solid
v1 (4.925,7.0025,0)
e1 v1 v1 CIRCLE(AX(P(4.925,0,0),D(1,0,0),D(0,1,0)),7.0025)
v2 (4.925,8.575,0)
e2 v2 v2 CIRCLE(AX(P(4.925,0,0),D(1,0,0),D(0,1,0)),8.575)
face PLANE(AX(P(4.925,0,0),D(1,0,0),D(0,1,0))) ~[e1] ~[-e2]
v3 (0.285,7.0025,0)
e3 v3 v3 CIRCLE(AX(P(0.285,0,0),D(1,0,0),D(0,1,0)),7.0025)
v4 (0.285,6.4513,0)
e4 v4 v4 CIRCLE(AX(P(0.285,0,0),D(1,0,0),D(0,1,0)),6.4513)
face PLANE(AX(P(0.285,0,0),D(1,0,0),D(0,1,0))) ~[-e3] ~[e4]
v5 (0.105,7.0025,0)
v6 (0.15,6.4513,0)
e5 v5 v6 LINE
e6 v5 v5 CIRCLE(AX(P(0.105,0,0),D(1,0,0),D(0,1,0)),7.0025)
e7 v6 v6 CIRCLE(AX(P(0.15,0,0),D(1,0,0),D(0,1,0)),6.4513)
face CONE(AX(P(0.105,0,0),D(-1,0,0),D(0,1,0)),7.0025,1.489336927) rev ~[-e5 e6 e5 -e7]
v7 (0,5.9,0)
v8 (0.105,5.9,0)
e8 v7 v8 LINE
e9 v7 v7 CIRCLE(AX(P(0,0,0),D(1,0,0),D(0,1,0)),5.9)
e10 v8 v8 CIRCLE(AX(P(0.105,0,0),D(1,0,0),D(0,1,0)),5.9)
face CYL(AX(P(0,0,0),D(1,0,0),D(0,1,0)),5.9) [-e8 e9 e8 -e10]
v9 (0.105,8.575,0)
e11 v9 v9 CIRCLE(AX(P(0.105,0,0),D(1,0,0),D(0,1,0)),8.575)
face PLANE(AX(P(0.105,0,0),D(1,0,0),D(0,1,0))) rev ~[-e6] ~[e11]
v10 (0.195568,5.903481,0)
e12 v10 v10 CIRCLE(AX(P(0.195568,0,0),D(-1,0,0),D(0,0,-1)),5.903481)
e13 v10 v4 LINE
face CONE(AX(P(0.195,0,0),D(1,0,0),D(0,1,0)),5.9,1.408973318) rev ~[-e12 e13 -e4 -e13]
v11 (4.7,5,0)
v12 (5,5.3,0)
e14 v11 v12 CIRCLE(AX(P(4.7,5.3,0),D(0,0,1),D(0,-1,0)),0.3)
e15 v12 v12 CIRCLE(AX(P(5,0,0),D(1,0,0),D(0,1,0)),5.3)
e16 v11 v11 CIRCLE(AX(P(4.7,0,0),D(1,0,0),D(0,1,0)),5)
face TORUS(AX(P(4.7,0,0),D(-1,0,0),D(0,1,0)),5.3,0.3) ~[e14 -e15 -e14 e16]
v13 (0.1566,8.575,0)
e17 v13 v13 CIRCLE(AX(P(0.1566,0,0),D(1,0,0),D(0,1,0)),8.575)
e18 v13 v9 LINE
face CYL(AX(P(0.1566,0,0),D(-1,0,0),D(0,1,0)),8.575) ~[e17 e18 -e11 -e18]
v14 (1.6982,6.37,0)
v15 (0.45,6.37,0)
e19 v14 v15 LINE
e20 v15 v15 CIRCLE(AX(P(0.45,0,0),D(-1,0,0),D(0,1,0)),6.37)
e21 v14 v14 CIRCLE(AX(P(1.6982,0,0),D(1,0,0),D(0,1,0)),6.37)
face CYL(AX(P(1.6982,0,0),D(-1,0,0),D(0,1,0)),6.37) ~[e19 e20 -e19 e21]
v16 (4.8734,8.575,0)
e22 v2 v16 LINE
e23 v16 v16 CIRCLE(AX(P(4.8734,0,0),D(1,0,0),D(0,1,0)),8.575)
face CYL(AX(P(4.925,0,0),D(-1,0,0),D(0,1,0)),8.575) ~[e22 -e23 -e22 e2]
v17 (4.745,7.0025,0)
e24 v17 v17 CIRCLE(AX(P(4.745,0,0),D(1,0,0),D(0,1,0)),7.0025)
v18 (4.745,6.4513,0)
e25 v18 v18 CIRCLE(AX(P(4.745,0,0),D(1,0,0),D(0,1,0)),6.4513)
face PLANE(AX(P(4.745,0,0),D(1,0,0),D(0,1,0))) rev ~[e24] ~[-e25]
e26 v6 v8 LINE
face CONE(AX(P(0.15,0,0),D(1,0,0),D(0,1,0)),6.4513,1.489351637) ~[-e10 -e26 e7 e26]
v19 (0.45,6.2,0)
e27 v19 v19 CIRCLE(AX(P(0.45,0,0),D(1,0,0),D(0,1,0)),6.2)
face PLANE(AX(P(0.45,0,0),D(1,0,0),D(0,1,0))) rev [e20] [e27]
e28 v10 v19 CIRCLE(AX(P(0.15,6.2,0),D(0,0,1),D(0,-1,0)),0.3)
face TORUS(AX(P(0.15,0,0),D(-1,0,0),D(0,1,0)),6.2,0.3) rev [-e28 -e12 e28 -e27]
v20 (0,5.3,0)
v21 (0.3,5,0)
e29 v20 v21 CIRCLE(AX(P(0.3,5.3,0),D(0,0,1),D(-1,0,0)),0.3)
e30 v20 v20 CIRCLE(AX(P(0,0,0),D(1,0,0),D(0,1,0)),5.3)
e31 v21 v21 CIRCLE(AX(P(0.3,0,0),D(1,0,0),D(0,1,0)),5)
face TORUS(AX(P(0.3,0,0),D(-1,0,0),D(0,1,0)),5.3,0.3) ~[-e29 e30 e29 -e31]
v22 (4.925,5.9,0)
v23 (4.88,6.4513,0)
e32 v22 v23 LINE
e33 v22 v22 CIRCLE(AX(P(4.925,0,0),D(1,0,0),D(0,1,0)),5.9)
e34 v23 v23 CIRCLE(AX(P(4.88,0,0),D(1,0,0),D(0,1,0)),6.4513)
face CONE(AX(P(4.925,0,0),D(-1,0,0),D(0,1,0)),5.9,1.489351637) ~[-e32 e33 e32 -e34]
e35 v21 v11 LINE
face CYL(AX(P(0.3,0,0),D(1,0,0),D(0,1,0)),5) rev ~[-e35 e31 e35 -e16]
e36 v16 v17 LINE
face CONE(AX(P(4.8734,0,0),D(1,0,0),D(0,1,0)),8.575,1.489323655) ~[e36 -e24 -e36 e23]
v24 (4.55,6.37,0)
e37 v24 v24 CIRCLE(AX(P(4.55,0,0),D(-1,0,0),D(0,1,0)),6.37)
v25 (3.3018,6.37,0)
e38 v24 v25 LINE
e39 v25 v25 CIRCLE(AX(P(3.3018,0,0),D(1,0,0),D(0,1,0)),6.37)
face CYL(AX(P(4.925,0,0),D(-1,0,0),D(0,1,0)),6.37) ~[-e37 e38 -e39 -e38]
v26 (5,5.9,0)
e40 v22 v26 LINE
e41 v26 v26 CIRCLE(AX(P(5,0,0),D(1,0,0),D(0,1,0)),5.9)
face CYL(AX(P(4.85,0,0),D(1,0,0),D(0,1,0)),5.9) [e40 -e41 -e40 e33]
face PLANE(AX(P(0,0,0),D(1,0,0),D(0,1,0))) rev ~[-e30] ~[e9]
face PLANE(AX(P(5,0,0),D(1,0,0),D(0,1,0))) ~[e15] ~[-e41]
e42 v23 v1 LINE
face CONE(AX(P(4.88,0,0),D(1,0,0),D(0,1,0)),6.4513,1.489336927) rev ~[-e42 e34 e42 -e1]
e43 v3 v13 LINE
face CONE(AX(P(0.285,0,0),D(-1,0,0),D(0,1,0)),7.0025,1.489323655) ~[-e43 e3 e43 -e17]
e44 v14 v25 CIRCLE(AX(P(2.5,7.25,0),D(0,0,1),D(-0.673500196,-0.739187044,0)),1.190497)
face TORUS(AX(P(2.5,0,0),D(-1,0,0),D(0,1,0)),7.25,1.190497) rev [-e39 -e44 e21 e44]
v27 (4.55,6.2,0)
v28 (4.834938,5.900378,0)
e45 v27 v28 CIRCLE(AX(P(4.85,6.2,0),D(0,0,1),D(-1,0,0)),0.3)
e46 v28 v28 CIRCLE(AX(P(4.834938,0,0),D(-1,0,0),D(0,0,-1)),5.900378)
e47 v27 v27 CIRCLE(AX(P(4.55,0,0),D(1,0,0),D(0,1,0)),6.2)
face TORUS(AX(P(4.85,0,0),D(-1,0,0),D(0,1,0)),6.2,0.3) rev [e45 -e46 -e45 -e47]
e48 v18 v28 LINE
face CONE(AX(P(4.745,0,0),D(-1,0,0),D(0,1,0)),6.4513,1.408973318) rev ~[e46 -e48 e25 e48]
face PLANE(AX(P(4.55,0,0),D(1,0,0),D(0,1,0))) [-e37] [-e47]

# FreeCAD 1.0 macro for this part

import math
import FreeCAD as App
import Part
import Sketcher
Q = App.Units.Quantity

doc = App.newDocument("Part")
body = doc.addObject("PartDesign::Body", "Body")

# Sketch on XY plane
sketch1 = body.newObject("Sketcher::SketchObject", "Sketch")
sketch1.AttachmentSupport = (doc.getObject("XY_Plane"), [""])
sketch1.MapMode = "FlatFace"
sketch1.addGeometry(Part.ArcOfCircle(Part.Circle(App.Vector(0.07, 6.29, 0), App.Vector(0, 0, 1), 0.08), math.radians(90), math.radians(180)), False)
sketch1.addGeometry(Part.LineSegment(App.Vector(0, 6.29, 0), App.Vector(0, 5.3, 0)), False)
sketch1.addGeometry(Part.ArcOfCircle(Part.Circle(App.Vector(0.3, 5.3, 0), App.Vector(0, 0, 1), 0.3), math.radians(180), math.radians(270)), False)
sketch1.addGeometry(Part.LineSegment(App.Vector(0.3, 5, 0), App.Vector(4.7, 5, 0)), False)
sketch1.addGeometry(Part.ArcOfCircle(Part.Circle(App.Vector(4.7, 5.3, 0), App.Vector(0, 0, 1), 0.3), math.radians(-90), math.radians(0)), False)
sketch1.addGeometry(Part.LineSegment(App.Vector(5, 5.3, 0), App.Vector(5, 6.29, 0)), False)
sketch1.addGeometry(Part.ArcOfCircle(Part.Circle(App.Vector(4.92, 6.29, 0), App.Vector(0, 0, 1), 0.08), math.radians(0), math.radians(90)), False)
sketch1.addGeometry(Part.LineSegment(App.Vector(4.92, 6.37, 0), App.Vector(3.3, 6.37, 0)), False)
sketch1.addGeometry(Part.ArcOfCircle(Part.Circle(App.Vector(2.5, 7.25, 0), App.Vector(0, 0, 1), 1.19), math.radians(-132), math.radians(-48)), False)
sketch1.addGeometry(Part.LineSegment(App.Vector(1.7, 6.37, 0), App.Vector(0.07, 6.37, 0)), False)
sketch1.addConstraint(Sketcher.Constraint("Tangent", 0, 2, 1, 1))
sketch1.addConstraint(Sketcher.Constraint("Tangent", 1, 2, 2, 1))
sketch1.addConstraint(Sketcher.Constraint("Tangent", 2, 2, 3, 1))
sketch1.addConstraint(Sketcher.Constraint("Tangent", 3, 2, 4, 1))
sketch1.addConstraint(Sketcher.Constraint("Tangent", 4, 2, 5, 1))
sketch1.addConstraint(Sketcher.Constraint("Tangent", 5, 2, 6, 1))
sketch1.addConstraint(Sketcher.Constraint("Tangent", 6, 2, 7, 1))
sketch1.addConstraint(Sketcher.Constraint("Coincident", 7, 2, 8, 2))
sketch1.addConstraint(Sketcher.Constraint("Coincident", 8, 1, 9, 1))
sketch1.addConstraint(Sketcher.Constraint("Tangent", 9, 2, 0, 1))
sketch1.addConstraint(Sketcher.Constraint("Vertical", 1))
sketch1.addConstraint(Sketcher.Constraint("Horizontal", 3))
sketch1.addConstraint(Sketcher.Constraint("Vertical", 5))
sketch1.addConstraint(Sketcher.Constraint("Horizontal", 7))
sketch1.addConstraint(Sketcher.Constraint("Horizontal", 9))
sketch1.addConstraint(Sketcher.Constraint("Equal", 2, 4))
sketch1.addConstraint(Sketcher.Constraint("Equal", 0, 6))
sketch1.addConstraint(Sketcher.Constraint("PointOnObject", 0, 2, -2))
sketch1.addConstraint(Sketcher.Constraint("Horizontal", 0, 3, 6, 3))
sketch1.addConstraint(Sketcher.Constraint("Equal", 7, 9))
sketch1.addConstraint(Sketcher.Constraint("Radius", 2, Q("0.3 mm")))
sketch1.addConstraint(Sketcher.Constraint("DistanceX", 3, 1, 3, 2, Q("4.4 mm")))
sketch1.addConstraint(Sketcher.Constraint("DistanceY", -1, 1, 2, 2, Q("5 mm")))
sketch1.addConstraint(Sketcher.Constraint("Radius", 0, Q("0.075 mm")))
sketch1.addConstraint(Sketcher.Constraint("Radius", 8, Q("1.1905 mm")))
sketch1.addConstraint(Sketcher.Constraint("DistanceY", 1, 2, 1, 1, Q("0.995 mm")))
sketch1.addConstraint(Sketcher.Constraint("DistanceY", -1, 1, 8, 3, Q("7.25 mm")))
revolution = body.newObject("PartDesign::Revolution", "Revolution")
revolution.Profile = sketch1
revolution.ReferenceAxis = (sketch1, ["H_Axis"])
revolution.Angle = 360

# Sketch on XY plane
sketch2 = body.newObject("Sketcher::SketchObject", "Sketch001")
sketch2.AttachmentSupport = (doc.getObject("XY_Plane"), [""])
sketch2.MapMode = "FlatFace"
sketch2.addGeometry(Part.LineSegment(App.Vector(5, 13.15, 0), App.Vector(0, 13.15, 0)), False)
sketch2.addGeometry(Part.LineSegment(App.Vector(0, 13.15, 0), App.Vector(0, 5.9, 0)), False)
sketch2.addGeometry(Part.LineSegment(App.Vector(0, 5.9, 0), App.Vector(0.15, 5.9, 0)), False)
sketch2.addGeometry(Part.ArcOfCircle(Part.Circle(App.Vector(0.15, 6.2, 0), App.Vector(0, 0, 1), 0.3), math.radians(-90), math.radians(0)), False)
sketch2.addGeometry(Part.LineSegment(App.Vector(0.45, 6.2, 0), App.Vector(0.45, 12.85, 0)), False)
sketch2.addGeometry(Part.LineSegment(App.Vector(0.45, 12.85, 0), App.Vector(4.55, 12.85, 0)), False)
sketch2.addGeometry(Part.LineSegment(App.Vector(4.55, 12.85, 0), App.Vector(4.55, 6.2, 0)), False)
sketch2.addGeometry(Part.ArcOfCircle(Part.Circle(App.Vector(4.85, 6.2, 0), App.Vector(0, 0, 1), 0.3), math.radians(180), math.radians(270)), False)
sketch2.addGeometry(Part.LineSegment(App.Vector(4.85, 5.9, 0), App.Vector(5, 5.9, 0)), False)
sketch2.addGeometry(Part.LineSegment(App.Vector(5, 5.9, 0), App.Vector(5, 13.15, 0)), False)
sketch2.addConstraint(Sketcher.Constraint("Coincident", 0, 2, 1, 1))
sketch2.addConstraint(Sketcher.Constraint("Coincident", 1, 2, 2, 1))
sketch2.addConstraint(Sketcher.Constraint("Tangent", 2, 2, 3, 1))
sketch2.addConstraint(Sketcher.Constraint("Tangent", 3, 2, 4, 1))
sketch2.addConstraint(Sketcher.Constraint("Coincident", 4, 2, 5, 1))
sketch2.addConstraint(Sketcher.Constraint("Coincident", 5, 2, 6, 1))
sketch2.addConstraint(Sketcher.Constraint("Tangent", 6, 2, 7, 1))
sketch2.addConstraint(Sketcher.Constraint("Tangent", 7, 2, 8, 1))
sketch2.addConstraint(Sketcher.Constraint("Coincident", 8, 2, 9, 1))
sketch2.addConstraint(Sketcher.Constraint("Coincident", 9, 2, 0, 1))
sketch2.addConstraint(Sketcher.Constraint("Horizontal", 0))
sketch2.addConstraint(Sketcher.Constraint("Vertical", 1))
sketch2.addConstraint(Sketcher.Constraint("Horizontal", 2))
sketch2.addConstraint(Sketcher.Constraint("Vertical", 4))
sketch2.addConstraint(Sketcher.Constraint("Horizontal", 5))
sketch2.addConstraint(Sketcher.Constraint("Vertical", 6))
sketch2.addConstraint(Sketcher.Constraint("Horizontal", 8))
sketch2.addConstraint(Sketcher.Constraint("Vertical", 9))
sketch2.addConstraint(Sketcher.Constraint("Equal", 3, 7))
sketch2.addConstraint(Sketcher.Constraint("PointOnObject", 0, 2, -2))
sketch2.addConstraint(Sketcher.Constraint("Horizontal", 3, 3, 7, 3))
sketch2.addConstraint(Sketcher.Constraint("Equal", 2, 8))
sketch2.addConstraint(Sketcher.Constraint("Radius", 3, Q("0.3 mm")))
sketch2.addConstraint(Sketcher.Constraint("DistanceX", 0, 2, 0, 1, Q("5 mm")))
sketch2.addConstraint(Sketcher.Constraint("DistanceX", 5, 1, 5, 2, Q("4.1 mm")))
sketch2.addConstraint(Sketcher.Constraint("DistanceY", 1, 2, 1, 1, Q("7.25 mm")))
sketch2.addConstraint(Sketcher.Constraint("DistanceY", 4, 1, 4, 2, Q("6.65 mm")))
sketch2.addConstraint(Sketcher.Constraint("DistanceY", -1, 1, 3, 3, Q("6.2 mm")))
groove = body.newObject("PartDesign::Groove", "Groove")
groove.Profile = sketch2
groove.ReferenceAxis = (sketch2, ["H_Axis"])
groove.Angle = 360

# Sketch on XY plane
sketch3 = body.newObject("Sketcher::SketchObject", "Sketch002")
sketch3.AttachmentSupport = (doc.getObject("XY_Plane"), [""])
sketch3.MapMode = "FlatFace"
sketch3.addGeometry(Part.LineSegment(App.Vector(4.75, 7, 0), App.Vector(4.75, 6.45, 0)), False)
sketch3.addGeometry(Part.LineSegment(App.Vector(4.75, 6.45, 0), App.Vector(4.83, 5.9, 0)), False)
sketch3.addGeometry(Part.LineSegment(App.Vector(4.83, 5.9, 0), App.Vector(4.92, 5.9, 0)), False)
sketch3.addGeometry(Part.LineSegment(App.Vector(4.92, 5.9, 0), App.Vector(4.88, 6.45, 0)), False)
sketch3.addGeometry(Part.LineSegment(App.Vector(4.88, 6.45, 0), App.Vector(4.92, 7, 0)), False)
sketch3.addGeometry(Part.LineSegment(App.Vector(4.92, 7, 0), App.Vector(4.92, 8.57, 0)), False)
sketch3.addGeometry(Part.LineSegment(App.Vector(4.92, 8.57, 0), App.Vector(4.87, 8.57, 0)), False)
sketch3.addGeometry(Part.LineSegment(App.Vector(4.87, 8.57, 0), App.Vector(4.75, 7, 0)), False)
sketch3.addConstraint(Sketcher.Constraint("Coincident", 0, 2, 1, 1))
sketch3.addConstraint(Sketcher.Constraint("Coincident", 1, 2, 2, 1))
sketch3.addConstraint(Sketcher.Constraint("Coincident", 2, 2, 3, 1))
sketch3.addConstraint(Sketcher.Constraint("Coincident", 3, 2, 4, 1))
sketch3.addConstraint(Sketcher.Constraint("Coincident", 4, 2, 5, 1))
sketch3.addConstraint(Sketcher.Constraint("Coincident", 5, 2, 6, 1))
sketch3.addConstraint(Sketcher.Constraint("Coincident", 6, 2, 7, 1))
sketch3.addConstraint(Sketcher.Constraint("Coincident", 7, 2, 0, 1))
sketch3.addConstraint(Sketcher.Constraint("Vertical", 0))
sketch3.addConstraint(Sketcher.Constraint("Horizontal", 2))
sketch3.addConstraint(Sketcher.Constraint("Vertical", 5))
sketch3.addConstraint(Sketcher.Constraint("Horizontal", 6))
sketch3.addConstraint(Sketcher.Constraint("Parallel", 4, 7))
sketch3.addConstraint(Sketcher.Constraint("Horizontal", 0, 2, 3, 2))
sketch3.addConstraint(Sketcher.Constraint("Horizontal", 4, 2, 7, 2))
sketch3.addConstraint(Sketcher.Constraint("Vertical", 2, 2, 4, 2))
sketch3.addConstraint(Sketcher.Constraint("Equal", 3, 4))
sketch3.addConstraint(Sketcher.Constraint("DistanceX", 2, 1, 2, 2, Q("0.09 mm")))
sketch3.addConstraint(Sketcher.Constraint("DistanceY", -1, 1, 1, 2, Q("5.9 mm")))
sketch3.addConstraint(Sketcher.Constraint("DistanceX", -1, 1, 3, 2, Q("4.88 mm")))
sketch3.addConstraint(Sketcher.Constraint("DistanceX", 0, 2, 1, 2, Q("0.09 mm")))
sketch3.addConstraint(Sketcher.Constraint("Distance", 4, Q("0.553 mm")))
sketch3.addConstraint(Sketcher.Constraint("DistanceX", 6, 2, 6, 1, Q("0.0516 mm")))
sketch3.addConstraint(Sketcher.Constraint("DistanceY", 5, 1, 5, 2, Q("1.5725 mm")))
revolution2 = body.newObject("PartDesign::Revolution", "Revolution001")
revolution2.Profile = sketch3
revolution2.ReferenceAxis = (sketch3, ["H_Axis"])
revolution2.Angle = 360

# Sketch on XY plane
sketch4 = body.newObject("Sketcher::SketchObject", "Sketch003")
sketch4.AttachmentSupport = (doc.getObject("XY_Plane"), [""])
sketch4.MapMode = "FlatFace"
sketch4.addGeometry(Part.LineSegment(App.Vector(0.15, 6.45, 0), App.Vector(0.1, 5.9, 0)), False)
sketch4.addGeometry(Part.LineSegment(App.Vector(0.1, 5.9, 0), App.Vector(0.2, 5.9, 0)), False)
sketch4.addGeometry(Part.LineSegment(App.Vector(0.2, 5.9, 0), App.Vector(0.28, 6.45, 0)), False)
sketch4.addGeometry(Part.LineSegment(App.Vector(0.28, 6.45, 0), App.Vector(0.28, 7, 0)), False)
sketch4.addGeometry(Part.LineSegment(App.Vector(0.28, 7, 0), App.Vector(0.16, 8.57, 0)), False)
sketch4.addGeometry(Part.LineSegment(App.Vector(0.16, 8.57, 0), App.Vector(0.1, 8.57, 0)), False)
sketch4.addGeometry(Part.LineSegment(App.Vector(0.1, 8.57, 0), App.Vector(0.1, 7, 0)), False)
sketch4.addGeometry(Part.LineSegment(App.Vector(0.1, 7, 0), App.Vector(0.15, 6.45, 0)), False)
sketch4.addConstraint(Sketcher.Constraint("Coincident", 0, 2, 1, 1))
sketch4.addConstraint(Sketcher.Constraint("Coincident", 1, 2, 2, 1))
sketch4.addConstraint(Sketcher.Constraint("Coincident", 2, 2, 3, 1))
sketch4.addConstraint(Sketcher.Constraint("Coincident", 3, 2, 4, 1))
sketch4.addConstraint(Sketcher.Constraint("Coincident", 4, 2, 5, 1))
sketch4.addConstraint(Sketcher.Constraint("Coincident", 5, 2, 6, 1))
sketch4.addConstraint(Sketcher.Constraint("Coincident", 6, 2, 7, 1))
sketch4.addConstraint(Sketcher.Constraint("Coincident", 7, 2, 0, 1))
sketch4.addConstraint(Sketcher.Constraint("Horizontal", 1))
sketch4.addConstraint(Sketcher.Constraint("Vertical", 3))
sketch4.addConstraint(Sketcher.Constraint("Horizontal", 5))
sketch4.addConstraint(Sketcher.Constraint("Vertical", 6))
sketch4.addConstraint(Sketcher.Constraint("Parallel", 4, 7))
sketch4.addConstraint(Sketcher.Constraint("Horizontal", 3, 2, 6, 2))
sketch4.addConstraint(Sketcher.Constraint("Horizontal", 2, 2, 7, 2))
sketch4.addConstraint(Sketcher.Constraint("Vertical", 0, 2, 5, 2))
sketch4.addConstraint(Sketcher.Constraint("Equal", 0, 7))
sketch4.addConstraint(Sketcher.Constraint("DistanceX", 1, 1, 1, 2, Q("0.09 mm")))
sketch4.addConstraint(Sketcher.Constraint("DistanceY", -1, 1, 0, 2, Q("5.9 mm")))
sketch4.addConstraint(Sketcher.Constraint("DistanceX", -1, 1, 7, 2, Q("0.15 mm")))
sketch4.addConstraint(Sketcher.Constraint("DistanceX", 1, 2, 2, 2, Q("0.09 mm")))
sketch4.addConstraint(Sketcher.Constraint("Distance", 7, Q("0.553 mm")))
sketch4.addConstraint(Sketcher.Constraint("DistanceX", 5, 2, 5, 1, Q("0.0516 mm")))
sketch4.addConstraint(Sketcher.Constraint("DistanceY", 6, 2, 6, 1, Q("1.5725 mm")))
revolution3 = body.newObject("PartDesign::Revolution", "Revolution002")
revolution3.Profile = sketch4
revolution3.ReferenceAxis = (sketch4, ["H_Axis"])
revolution3.Angle = 360

doc.recompute()
